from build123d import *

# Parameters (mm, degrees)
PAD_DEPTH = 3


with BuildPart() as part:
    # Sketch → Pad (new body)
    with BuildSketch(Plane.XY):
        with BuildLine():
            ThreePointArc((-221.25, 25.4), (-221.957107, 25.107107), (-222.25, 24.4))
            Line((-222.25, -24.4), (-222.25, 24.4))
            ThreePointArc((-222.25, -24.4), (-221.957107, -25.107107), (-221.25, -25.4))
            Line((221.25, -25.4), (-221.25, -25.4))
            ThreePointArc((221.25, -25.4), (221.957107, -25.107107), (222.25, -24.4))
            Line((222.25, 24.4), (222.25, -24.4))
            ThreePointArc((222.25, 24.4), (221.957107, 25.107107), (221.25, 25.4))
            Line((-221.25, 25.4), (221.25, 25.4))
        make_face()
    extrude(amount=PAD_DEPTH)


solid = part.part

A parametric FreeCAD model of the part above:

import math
import FreeCAD as App
import Part
import Sketcher
from FreeCAD import Vector
Q = App.Units.Quantity

doc = App.newDocument("Part")
body = doc.addObject("PartDesign::Body", "Body")

# Sketch on XY plane
sketch1 = body.newObject("Sketcher::SketchObject", "Sketch")
sketch1.AttachmentSupport = (doc.getObject("XY_Plane"), [""])
sketch1.MapMode = "FlatFace"
sketch1.addGeometry([
    Part.ArcOfCircle(Part.Circle(Vector(-221.3, 24.4, 0), Vector(0, 0, 1), 1), math.radians(90), math.radians(180)),  # 0
    Part.LineSegment(Vector(-222.2, 24.4, 0), Vector(-222.2, -24.4, 0)),  # 1
    Part.ArcOfCircle(Part.Circle(Vector(-221.3, -24.4, 0), Vector(0, 0, 1), 1), math.radians(180), math.radians(270)),  # 2
    Part.LineSegment(Vector(-221.2, -25.4, 0), Vector(221.2, -25.4, 0)),  # 3
    Part.ArcOfCircle(Part.Circle(Vector(221.3, -24.4, 0), Vector(0, 0, 1), 1), math.radians(-90), math.radians(0)),  # 4
    Part.LineSegment(Vector(222.2, -24.4, 0), Vector(222.2, 24.4, 0)),  # 5
    Part.ArcOfCircle(Part.Circle(Vector(221.3, 24.4, 0), Vector(0, 0, 1), 1), math.radians(0), math.radians(90)),  # 6
    Part.LineSegment(Vector(221.2, 25.4, 0), Vector(-221.2, 25.4, 0)),  # 7
], False)
sketch1.addConstraint([
    Sketcher.Constraint("Tangent", 0, 2, 1, 1),
    Sketcher.Constraint("Tangent", 1, 2, 2, 1),
    Sketcher.Constraint("Tangent", 2, 2, 3, 1),
    Sketcher.Constraint("Tangent", 3, 2, 4, 1),
    Sketcher.Constraint("Tangent", 4, 2, 5, 1),
    Sketcher.Constraint("Tangent", 5, 2, 6, 1),
    Sketcher.Constraint("Tangent", 6, 2, 7, 1),
    Sketcher.Constraint("Tangent", 7, 2, 0, 1),
    Sketcher.Constraint("Vertical", 1),
    Sketcher.Constraint("Horizontal", 3),
    Sketcher.Constraint("Vertical", 5),
    Sketcher.Constraint("Horizontal", 7),
    Sketcher.Constraint("Equal", 0, 2),
    Sketcher.Constraint("Equal", 2, 4),
    Sketcher.Constraint("Equal", 4, 6),
    Sketcher.Constraint("Symmetric", 0, 3, 4, 3, -1, 1),
    Sketcher.Constraint("Radius", 0, Q("0.999999 mm")),
    Sketcher.Constraint("DistanceX", 3, 1, 3, 2, Q("442.5 mm")),
    Sketcher.Constraint("DistanceY", 1, 2, 1, 1, Q("48.8 mm")),
])
pad1 = body.newObject("PartDesign::Pad", "Pad")
pad1.Profile = sketch1
pad1.Length = 3

doc.recompute()
